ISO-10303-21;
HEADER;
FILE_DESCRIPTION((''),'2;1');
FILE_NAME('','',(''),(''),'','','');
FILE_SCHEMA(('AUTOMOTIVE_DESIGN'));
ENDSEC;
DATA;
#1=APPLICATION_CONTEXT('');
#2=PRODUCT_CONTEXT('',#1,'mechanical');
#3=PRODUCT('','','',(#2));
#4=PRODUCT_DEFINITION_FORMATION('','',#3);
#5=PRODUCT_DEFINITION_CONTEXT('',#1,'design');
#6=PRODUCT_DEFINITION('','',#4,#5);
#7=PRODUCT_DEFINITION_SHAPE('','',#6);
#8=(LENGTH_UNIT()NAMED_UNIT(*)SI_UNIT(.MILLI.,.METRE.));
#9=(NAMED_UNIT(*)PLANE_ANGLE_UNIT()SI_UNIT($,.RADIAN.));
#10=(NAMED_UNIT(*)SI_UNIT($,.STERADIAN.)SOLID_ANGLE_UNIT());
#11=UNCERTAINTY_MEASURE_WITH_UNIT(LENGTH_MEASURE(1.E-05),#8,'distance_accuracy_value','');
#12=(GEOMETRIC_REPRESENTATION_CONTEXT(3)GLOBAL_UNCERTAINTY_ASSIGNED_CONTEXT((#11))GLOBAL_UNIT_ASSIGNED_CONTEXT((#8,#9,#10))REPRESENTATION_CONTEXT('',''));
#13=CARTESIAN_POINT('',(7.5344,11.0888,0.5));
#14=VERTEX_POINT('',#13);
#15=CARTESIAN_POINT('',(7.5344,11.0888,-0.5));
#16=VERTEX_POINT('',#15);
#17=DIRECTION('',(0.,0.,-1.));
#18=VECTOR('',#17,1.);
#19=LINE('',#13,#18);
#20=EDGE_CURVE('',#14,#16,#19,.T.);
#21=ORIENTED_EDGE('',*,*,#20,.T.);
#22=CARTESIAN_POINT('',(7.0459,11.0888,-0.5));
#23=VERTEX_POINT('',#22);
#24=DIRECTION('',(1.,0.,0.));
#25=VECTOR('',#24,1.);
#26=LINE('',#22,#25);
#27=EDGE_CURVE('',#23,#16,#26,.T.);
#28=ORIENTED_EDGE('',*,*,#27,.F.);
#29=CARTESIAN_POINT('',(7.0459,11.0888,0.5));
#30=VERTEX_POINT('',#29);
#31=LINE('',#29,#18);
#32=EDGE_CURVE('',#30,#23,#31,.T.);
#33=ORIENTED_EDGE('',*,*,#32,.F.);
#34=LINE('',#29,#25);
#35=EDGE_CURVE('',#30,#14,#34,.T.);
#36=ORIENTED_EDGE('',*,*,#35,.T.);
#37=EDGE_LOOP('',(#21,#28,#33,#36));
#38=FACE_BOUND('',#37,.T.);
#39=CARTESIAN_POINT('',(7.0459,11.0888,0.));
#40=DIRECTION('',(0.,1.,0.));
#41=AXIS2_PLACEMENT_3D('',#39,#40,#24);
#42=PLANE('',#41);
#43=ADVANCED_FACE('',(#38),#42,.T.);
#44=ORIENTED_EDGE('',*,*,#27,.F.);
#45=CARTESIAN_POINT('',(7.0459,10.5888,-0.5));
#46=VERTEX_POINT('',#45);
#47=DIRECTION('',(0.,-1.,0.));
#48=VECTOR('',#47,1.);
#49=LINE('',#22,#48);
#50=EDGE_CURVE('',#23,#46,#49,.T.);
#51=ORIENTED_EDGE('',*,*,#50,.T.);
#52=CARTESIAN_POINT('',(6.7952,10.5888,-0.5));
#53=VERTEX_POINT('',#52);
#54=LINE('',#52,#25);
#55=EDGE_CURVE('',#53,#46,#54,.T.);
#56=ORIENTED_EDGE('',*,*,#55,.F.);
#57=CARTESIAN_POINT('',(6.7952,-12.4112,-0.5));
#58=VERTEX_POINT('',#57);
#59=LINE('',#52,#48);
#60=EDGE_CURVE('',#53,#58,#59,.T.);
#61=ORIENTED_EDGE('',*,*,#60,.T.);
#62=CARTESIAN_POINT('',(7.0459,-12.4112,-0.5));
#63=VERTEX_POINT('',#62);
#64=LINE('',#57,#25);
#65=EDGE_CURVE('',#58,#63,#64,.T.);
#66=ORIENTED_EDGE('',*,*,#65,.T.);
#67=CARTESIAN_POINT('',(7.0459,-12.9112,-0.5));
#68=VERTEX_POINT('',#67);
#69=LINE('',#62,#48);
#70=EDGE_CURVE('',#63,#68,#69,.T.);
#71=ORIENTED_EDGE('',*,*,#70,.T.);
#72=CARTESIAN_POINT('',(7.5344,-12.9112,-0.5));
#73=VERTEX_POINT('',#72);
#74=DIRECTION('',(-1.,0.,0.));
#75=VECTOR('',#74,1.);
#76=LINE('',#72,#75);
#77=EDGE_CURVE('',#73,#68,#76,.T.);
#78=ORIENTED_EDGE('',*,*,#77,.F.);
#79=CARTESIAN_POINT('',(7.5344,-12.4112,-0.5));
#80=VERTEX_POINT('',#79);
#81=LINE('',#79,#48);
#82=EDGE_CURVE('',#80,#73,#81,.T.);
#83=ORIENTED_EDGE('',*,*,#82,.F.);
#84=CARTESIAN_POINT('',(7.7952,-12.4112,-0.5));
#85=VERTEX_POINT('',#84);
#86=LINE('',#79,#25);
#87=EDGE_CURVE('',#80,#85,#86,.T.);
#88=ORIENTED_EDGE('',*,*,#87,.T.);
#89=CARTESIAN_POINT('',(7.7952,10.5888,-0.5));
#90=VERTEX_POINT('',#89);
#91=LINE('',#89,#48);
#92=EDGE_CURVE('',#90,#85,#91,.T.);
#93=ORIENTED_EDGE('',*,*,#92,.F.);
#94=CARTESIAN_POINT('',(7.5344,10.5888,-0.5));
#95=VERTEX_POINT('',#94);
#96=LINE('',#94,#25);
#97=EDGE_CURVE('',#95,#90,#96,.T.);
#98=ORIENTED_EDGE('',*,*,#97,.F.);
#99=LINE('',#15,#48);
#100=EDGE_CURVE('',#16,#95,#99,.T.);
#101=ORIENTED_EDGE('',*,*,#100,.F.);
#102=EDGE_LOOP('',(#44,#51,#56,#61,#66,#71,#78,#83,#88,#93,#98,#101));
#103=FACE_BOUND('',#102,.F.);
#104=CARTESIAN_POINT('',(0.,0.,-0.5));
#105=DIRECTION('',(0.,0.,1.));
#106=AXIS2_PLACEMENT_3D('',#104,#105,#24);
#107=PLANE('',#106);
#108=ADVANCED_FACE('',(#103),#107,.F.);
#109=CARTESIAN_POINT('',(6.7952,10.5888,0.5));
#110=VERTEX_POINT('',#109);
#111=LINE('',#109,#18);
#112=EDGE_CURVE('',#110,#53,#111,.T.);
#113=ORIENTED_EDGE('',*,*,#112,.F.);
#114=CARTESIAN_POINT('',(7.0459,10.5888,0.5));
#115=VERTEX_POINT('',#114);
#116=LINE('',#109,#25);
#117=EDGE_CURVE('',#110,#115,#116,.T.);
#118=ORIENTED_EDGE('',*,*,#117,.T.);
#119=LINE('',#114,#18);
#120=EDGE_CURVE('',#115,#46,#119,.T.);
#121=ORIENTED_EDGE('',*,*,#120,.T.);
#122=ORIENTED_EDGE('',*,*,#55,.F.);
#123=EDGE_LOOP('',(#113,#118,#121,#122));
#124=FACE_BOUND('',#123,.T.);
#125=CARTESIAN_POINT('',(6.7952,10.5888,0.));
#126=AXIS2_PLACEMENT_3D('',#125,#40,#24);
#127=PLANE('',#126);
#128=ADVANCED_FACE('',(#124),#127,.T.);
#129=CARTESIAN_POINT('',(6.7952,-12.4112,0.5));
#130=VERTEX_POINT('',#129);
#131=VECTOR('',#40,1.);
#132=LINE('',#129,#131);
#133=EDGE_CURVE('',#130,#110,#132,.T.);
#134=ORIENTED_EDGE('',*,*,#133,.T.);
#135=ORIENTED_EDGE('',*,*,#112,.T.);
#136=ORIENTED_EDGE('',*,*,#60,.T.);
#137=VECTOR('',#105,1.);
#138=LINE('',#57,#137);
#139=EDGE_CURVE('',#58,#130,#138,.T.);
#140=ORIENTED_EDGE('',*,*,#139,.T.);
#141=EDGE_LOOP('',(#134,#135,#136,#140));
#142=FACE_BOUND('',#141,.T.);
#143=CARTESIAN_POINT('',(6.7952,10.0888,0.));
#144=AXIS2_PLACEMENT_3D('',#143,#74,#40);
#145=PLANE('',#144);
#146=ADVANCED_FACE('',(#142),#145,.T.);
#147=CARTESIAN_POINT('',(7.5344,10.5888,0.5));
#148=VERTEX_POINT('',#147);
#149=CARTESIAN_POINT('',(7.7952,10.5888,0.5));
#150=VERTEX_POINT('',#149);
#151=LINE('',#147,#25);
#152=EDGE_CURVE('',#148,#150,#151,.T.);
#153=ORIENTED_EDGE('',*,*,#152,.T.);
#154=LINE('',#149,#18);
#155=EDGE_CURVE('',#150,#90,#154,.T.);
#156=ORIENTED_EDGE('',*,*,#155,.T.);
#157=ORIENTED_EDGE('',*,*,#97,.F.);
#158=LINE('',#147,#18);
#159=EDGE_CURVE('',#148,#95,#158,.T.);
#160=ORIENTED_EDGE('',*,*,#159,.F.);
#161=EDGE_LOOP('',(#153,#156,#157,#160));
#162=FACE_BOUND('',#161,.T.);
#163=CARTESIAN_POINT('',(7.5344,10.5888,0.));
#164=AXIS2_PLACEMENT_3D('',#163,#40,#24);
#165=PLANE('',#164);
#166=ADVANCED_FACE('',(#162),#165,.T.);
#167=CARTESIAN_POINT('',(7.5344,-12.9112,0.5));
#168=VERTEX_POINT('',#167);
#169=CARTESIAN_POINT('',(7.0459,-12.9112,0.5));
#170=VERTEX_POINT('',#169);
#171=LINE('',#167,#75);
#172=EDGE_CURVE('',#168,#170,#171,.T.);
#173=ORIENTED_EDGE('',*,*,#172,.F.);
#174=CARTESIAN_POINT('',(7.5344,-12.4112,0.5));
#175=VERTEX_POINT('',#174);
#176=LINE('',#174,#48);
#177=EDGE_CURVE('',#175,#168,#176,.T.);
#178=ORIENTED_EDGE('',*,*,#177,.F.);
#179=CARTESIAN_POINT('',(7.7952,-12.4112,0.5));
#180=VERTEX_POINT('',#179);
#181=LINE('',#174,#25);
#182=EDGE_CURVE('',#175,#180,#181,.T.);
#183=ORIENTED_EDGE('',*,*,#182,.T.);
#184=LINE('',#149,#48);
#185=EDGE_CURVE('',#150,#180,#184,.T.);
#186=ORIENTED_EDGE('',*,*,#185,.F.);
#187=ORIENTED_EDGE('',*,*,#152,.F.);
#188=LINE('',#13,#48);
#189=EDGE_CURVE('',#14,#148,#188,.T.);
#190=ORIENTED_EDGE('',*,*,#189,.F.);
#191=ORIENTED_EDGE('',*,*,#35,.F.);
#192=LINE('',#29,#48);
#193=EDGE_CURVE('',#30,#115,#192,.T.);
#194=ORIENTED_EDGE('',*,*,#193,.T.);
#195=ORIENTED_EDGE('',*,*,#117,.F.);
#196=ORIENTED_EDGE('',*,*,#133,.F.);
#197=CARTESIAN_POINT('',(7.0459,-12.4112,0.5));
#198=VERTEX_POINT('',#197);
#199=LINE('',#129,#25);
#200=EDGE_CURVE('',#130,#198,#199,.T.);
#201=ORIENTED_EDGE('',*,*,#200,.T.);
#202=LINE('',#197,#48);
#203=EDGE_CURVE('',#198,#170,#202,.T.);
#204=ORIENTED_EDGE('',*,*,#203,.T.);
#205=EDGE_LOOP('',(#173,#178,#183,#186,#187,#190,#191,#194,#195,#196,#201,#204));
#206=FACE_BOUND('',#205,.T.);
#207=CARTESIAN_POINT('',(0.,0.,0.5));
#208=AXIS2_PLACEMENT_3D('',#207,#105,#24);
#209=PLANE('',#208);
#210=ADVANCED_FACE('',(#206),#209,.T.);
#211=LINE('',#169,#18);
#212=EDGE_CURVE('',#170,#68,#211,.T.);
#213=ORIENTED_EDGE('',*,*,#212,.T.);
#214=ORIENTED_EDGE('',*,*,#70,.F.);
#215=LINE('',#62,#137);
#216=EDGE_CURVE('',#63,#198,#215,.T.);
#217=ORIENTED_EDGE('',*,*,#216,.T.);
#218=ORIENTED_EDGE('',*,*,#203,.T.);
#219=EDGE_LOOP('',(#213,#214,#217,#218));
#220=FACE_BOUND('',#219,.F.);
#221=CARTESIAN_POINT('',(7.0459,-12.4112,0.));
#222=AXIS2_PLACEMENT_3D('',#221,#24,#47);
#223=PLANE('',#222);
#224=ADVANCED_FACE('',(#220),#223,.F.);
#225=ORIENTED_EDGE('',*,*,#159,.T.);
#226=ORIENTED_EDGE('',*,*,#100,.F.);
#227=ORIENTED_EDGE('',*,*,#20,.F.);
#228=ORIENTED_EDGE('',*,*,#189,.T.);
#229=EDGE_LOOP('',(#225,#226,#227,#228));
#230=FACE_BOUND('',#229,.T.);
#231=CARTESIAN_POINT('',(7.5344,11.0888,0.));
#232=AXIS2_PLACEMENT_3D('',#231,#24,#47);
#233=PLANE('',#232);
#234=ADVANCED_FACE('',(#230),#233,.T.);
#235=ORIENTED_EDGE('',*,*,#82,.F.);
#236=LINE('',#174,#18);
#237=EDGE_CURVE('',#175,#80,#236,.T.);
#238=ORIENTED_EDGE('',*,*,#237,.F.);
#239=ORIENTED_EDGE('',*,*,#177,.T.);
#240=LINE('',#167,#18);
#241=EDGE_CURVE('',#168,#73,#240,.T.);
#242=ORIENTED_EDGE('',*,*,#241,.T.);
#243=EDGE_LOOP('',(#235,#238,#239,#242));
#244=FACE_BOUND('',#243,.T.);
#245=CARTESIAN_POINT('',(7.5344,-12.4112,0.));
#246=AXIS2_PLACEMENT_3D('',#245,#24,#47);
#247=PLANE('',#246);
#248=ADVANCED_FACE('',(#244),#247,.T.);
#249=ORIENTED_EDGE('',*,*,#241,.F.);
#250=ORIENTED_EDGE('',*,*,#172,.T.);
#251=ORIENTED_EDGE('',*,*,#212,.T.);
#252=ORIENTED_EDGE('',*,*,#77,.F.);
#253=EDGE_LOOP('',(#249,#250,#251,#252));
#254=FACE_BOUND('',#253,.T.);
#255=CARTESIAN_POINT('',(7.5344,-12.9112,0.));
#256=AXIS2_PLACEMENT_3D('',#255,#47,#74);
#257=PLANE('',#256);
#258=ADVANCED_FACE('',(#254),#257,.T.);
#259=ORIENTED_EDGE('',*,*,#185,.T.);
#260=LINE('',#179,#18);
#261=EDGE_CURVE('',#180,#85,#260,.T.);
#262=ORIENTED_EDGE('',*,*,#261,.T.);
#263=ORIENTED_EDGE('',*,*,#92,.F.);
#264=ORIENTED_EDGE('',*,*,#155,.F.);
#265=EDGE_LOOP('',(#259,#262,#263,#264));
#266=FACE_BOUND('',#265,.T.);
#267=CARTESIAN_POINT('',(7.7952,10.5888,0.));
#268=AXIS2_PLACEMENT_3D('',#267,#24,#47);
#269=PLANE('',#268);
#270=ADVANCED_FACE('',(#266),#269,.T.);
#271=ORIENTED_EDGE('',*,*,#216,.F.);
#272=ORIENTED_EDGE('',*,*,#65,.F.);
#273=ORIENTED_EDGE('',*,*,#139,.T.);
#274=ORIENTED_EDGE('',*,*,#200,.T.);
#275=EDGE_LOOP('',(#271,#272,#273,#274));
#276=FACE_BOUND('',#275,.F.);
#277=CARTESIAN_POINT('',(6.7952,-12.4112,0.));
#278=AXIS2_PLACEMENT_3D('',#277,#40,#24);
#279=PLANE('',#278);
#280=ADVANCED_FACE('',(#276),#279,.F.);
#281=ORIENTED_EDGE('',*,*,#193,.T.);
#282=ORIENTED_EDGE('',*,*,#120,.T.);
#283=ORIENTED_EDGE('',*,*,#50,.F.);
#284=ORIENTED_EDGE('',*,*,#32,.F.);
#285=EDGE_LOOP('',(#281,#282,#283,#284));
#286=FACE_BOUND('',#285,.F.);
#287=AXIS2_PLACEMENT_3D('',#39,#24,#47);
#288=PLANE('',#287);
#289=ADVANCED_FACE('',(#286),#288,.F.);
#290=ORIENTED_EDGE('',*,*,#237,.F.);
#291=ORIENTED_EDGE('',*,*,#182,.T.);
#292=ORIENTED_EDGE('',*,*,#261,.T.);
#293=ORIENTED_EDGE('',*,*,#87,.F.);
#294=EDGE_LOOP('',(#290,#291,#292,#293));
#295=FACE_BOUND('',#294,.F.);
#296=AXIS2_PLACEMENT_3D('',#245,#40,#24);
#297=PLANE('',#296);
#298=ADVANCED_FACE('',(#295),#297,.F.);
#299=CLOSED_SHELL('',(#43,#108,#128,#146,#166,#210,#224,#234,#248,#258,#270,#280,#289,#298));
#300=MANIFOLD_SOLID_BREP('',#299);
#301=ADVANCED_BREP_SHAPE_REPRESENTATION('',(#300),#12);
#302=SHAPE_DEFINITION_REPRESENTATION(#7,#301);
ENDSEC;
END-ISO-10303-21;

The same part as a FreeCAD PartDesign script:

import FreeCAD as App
import Part
import Sketcher

V = App.Vector
Q = App.Units.Quantity


def add_polygon(sketch, points):
    """Adds a closed chain of lines whose ends are joined by coincident constraints."""
    first, n = sketch.GeometryCount, len(points)
    for a, b in zip(points, points[1:] + points[:1]):
        sketch.addGeometry(Part.LineSegment(App.Vector(*a, 0), App.Vector(*b, 0)), False)
    for i in range(n):
        sketch.addConstraint(Sketcher.Constraint("Coincident", first + i, 2, first + (i + 1) % n, 1))

doc = App.newDocument("Part")
params = doc.addObject("Spreadsheet::Sheet", "Params")
for row, (alias, value) in enumerate([
    ("sketch1_height", "23 mm"),
    ("sketch1_height2", "0.5 mm"),
    ("pad1_length", "1 mm"),
], start=1):
    params.set(f"A{row}", alias)
    params.set(f"B{row}", "=" + value)
    params.setAlias(f"B{row}", alias)

body = doc.addObject("PartDesign::Body", "Body")

sketch1 = doc.addObject("Sketcher::SketchObject", "Sketch")
body.addObject(sketch1)
sketch1.AttachmentSupport = (doc.XY_Plane, [""])
sketch1.MapMode = "FlatFace"
add_polygon(sketch1, [(6.8, 10.59), (6.8, -12.41), (7.05, -12.41), (7.05, -12.91), (7.53, -12.91), (7.53, -12.41), (7.8, -12.41), (7.8, 10.59), (7.53, 10.59), (7.53, 11.09), (7.05, 11.09), (7.05, 10.59)])
sketch1.addConstraint([
    Sketcher.Constraint("Vertical", 0),
    Sketcher.Constraint("Horizontal", 1),
    Sketcher.Constraint("Vertical", 2),
    Sketcher.Constraint("Horizontal", 3),
    Sketcher.Constraint("Vertical", 4),
    Sketcher.Constraint("Horizontal", 5),
    Sketcher.Constraint("Vertical", 6),
    Sketcher.Constraint("Horizontal", 7),
    Sketcher.Constraint("Vertical", 8),
    Sketcher.Constraint("Horizontal", 9),
    Sketcher.Constraint("Vertical", 10),
    Sketcher.Constraint("Horizontal", 11),
    Sketcher.Constraint("Horizontal", 1, 2, 4, 2),
    Sketcher.Constraint("Horizontal", 7, 2, 10, 2),
    Sketcher.Constraint("Vertical", 4, 2, 7, 2),
    Sketcher.Constraint("Vertical", 2, 2, 9, 2),
    Sketcher.Constraint("Equal", 4, 8),
    Sketcher.Constraint("DistanceY", 0, 2, 0, 1, Q("23 mm")),
    Sketcher.Constraint("DistanceY", 2, 2, 2, 1, Q("0.5 mm")),
    Sketcher.Constraint("DistanceX", 0, 2, 5, 2, Q("1 mm")),
    Sketcher.Constraint("DistanceX", 1, 1, 1, 2, Q("0.2507 mm")),
    Sketcher.Constraint("DistanceX", 3, 1, 3, 2, Q("0.4885 mm")),
    Sketcher.Constraint("DistanceX", -1, 1, 1, 2, Q("7.046 mm")),
    Sketcher.Constraint("DistanceY", 0, 2, -1, 1, Q("12.4112 mm")),
])
sketch1.setExpression("Constraints[29]", "Params.sketch1_height")
sketch1.setExpression("Constraints[30]", "Params.sketch1_height2")
pad1 = doc.addObject("PartDesign::Pad", "Pad")
body.addObject(pad1)
pad1.Profile = sketch1
pad1.setExpression("Length", "Params.pad1_length")
pad1.Midplane = True

doc.recompute()
